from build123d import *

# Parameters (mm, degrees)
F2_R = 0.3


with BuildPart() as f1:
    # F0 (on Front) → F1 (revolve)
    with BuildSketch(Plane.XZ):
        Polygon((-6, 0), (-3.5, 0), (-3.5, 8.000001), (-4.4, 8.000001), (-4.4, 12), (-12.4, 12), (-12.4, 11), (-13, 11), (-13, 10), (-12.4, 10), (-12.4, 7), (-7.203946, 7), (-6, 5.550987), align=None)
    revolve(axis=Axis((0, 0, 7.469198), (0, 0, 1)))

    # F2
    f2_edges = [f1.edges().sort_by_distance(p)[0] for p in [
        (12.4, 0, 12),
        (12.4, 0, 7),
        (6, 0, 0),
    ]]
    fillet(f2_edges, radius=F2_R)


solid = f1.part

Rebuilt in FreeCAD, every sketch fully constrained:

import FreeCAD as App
import Part
import Sketcher

V = App.Vector
Q = App.Units.Quantity


def edges_at(feature, points):
    """Names of the edges that pass closest to the given points."""
    edges = feature.Shape.Edges
    near = lambda p: min(range(len(edges)), key=lambda i: edges[i].distToShape(Part.Vertex(*p))[0])
    return sorted({f"Edge{near(p) + 1}" for p in points})


def add_polygon(sketch, points):
    """Adds a closed chain of lines whose ends are joined by coincident constraints."""
    first, n = sketch.GeometryCount, len(points)
    for a, b in zip(points, points[1:] + points[:1]):
        sketch.addGeometry(Part.LineSegment(App.Vector(*a, 0), App.Vector(*b, 0)), False)
    for i in range(n):
        sketch.addConstraint(Sketcher.Constraint("Coincident", first + i, 2, first + (i + 1) % n, 1))

doc = App.newDocument("Part")
body = doc.addObject("PartDesign::Body", "Body")

# Sketch on XZ plane
sketch1 = body.newObject("Sketcher::SketchObject", "Sketch")
sketch1.AttachmentSupport = (doc.getObject("XZ_Plane"), [""])
sketch1.MapMode = "FlatFace"
add_polygon(sketch1, [(-6, 0), (-3.5, 0), (-3.5, 8.000001), (-4.4, 8.000001), (-4.4, 12), (-12.4, 12), (-12.4, 11), (-13, 11), (-13, 10), (-12.4, 10), (-12.4, 7), (-7.203946, 7), (-6, 5.550987)])  # lines 0-12
sketch1.addConstraint([
    Sketcher.Constraint("Horizontal", 0),
    Sketcher.Constraint("Vertical", 1),
    Sketcher.Constraint("Horizontal", 2),
    Sketcher.Constraint("Vertical", 3),
    Sketcher.Constraint("Horizontal", 4),
    Sketcher.Constraint("Vertical", 5),
    Sketcher.Constraint("Horizontal", 6),
    Sketcher.Constraint("Vertical", 7),
    Sketcher.Constraint("Horizontal", 8),
    Sketcher.Constraint("Vertical", 9),
    Sketcher.Constraint("Horizontal", 10),
    Sketcher.Constraint("Vertical", 12),
    Sketcher.Constraint("PointOnObject", 0, 2, -1),
    Sketcher.Constraint("Vertical", 5, 2, 8, 2),
    Sketcher.Constraint("Equal", 4, 1),
    Sketcher.Constraint("Equal", 5, 7),
    Sketcher.Constraint("DistanceX", 4, 2, 4, 1, Q("8 mm")),
    Sketcher.Constraint("DistanceY", 3, 1, 3, 2, Q("3.999999 mm")),
    Sketcher.Constraint("DistanceY", 5, 2, 5, 1, Q("1 mm")),
    Sketcher.Constraint("DistanceY", 9, 2, 9, 1, Q("3 mm")),
    Sketcher.Constraint("DistanceX", 0, 1, 0, 2, Q("2.5 mm")),
    Sketcher.Constraint("DistanceX", 2, 2, 2, 1, Q("0.9 mm")),
    Sketcher.Constraint("DistanceX", 6, 2, 6, 1, Q("0.6 mm")),
    Sketcher.Constraint("DistanceX", 6, 2, -1, 1, Q("13 mm")),
    Sketcher.Constraint("DistanceX", 10, 1, 10, 2, Q("5.196054 mm")),
    Sketcher.Constraint("DistanceY", 12, 2, 12, 1, Q("5.550987 mm")),
])
revolution = body.newObject("PartDesign::Revolution", "Revolution")
revolution.Profile = sketch1
revolution.ReferenceAxis = (sketch1, ["V_Axis"])
revolution.Angle = 360
doc.recompute()

fillet = body.newObject("PartDesign::Fillet", "Fillet")
fillet.Base = (revolution, edges_at(revolution, [(12.4, 0, 12), (12.4, 0, 7), (6, 0, 0)]))
fillet.Radius = 0.3

doc.recompute()
